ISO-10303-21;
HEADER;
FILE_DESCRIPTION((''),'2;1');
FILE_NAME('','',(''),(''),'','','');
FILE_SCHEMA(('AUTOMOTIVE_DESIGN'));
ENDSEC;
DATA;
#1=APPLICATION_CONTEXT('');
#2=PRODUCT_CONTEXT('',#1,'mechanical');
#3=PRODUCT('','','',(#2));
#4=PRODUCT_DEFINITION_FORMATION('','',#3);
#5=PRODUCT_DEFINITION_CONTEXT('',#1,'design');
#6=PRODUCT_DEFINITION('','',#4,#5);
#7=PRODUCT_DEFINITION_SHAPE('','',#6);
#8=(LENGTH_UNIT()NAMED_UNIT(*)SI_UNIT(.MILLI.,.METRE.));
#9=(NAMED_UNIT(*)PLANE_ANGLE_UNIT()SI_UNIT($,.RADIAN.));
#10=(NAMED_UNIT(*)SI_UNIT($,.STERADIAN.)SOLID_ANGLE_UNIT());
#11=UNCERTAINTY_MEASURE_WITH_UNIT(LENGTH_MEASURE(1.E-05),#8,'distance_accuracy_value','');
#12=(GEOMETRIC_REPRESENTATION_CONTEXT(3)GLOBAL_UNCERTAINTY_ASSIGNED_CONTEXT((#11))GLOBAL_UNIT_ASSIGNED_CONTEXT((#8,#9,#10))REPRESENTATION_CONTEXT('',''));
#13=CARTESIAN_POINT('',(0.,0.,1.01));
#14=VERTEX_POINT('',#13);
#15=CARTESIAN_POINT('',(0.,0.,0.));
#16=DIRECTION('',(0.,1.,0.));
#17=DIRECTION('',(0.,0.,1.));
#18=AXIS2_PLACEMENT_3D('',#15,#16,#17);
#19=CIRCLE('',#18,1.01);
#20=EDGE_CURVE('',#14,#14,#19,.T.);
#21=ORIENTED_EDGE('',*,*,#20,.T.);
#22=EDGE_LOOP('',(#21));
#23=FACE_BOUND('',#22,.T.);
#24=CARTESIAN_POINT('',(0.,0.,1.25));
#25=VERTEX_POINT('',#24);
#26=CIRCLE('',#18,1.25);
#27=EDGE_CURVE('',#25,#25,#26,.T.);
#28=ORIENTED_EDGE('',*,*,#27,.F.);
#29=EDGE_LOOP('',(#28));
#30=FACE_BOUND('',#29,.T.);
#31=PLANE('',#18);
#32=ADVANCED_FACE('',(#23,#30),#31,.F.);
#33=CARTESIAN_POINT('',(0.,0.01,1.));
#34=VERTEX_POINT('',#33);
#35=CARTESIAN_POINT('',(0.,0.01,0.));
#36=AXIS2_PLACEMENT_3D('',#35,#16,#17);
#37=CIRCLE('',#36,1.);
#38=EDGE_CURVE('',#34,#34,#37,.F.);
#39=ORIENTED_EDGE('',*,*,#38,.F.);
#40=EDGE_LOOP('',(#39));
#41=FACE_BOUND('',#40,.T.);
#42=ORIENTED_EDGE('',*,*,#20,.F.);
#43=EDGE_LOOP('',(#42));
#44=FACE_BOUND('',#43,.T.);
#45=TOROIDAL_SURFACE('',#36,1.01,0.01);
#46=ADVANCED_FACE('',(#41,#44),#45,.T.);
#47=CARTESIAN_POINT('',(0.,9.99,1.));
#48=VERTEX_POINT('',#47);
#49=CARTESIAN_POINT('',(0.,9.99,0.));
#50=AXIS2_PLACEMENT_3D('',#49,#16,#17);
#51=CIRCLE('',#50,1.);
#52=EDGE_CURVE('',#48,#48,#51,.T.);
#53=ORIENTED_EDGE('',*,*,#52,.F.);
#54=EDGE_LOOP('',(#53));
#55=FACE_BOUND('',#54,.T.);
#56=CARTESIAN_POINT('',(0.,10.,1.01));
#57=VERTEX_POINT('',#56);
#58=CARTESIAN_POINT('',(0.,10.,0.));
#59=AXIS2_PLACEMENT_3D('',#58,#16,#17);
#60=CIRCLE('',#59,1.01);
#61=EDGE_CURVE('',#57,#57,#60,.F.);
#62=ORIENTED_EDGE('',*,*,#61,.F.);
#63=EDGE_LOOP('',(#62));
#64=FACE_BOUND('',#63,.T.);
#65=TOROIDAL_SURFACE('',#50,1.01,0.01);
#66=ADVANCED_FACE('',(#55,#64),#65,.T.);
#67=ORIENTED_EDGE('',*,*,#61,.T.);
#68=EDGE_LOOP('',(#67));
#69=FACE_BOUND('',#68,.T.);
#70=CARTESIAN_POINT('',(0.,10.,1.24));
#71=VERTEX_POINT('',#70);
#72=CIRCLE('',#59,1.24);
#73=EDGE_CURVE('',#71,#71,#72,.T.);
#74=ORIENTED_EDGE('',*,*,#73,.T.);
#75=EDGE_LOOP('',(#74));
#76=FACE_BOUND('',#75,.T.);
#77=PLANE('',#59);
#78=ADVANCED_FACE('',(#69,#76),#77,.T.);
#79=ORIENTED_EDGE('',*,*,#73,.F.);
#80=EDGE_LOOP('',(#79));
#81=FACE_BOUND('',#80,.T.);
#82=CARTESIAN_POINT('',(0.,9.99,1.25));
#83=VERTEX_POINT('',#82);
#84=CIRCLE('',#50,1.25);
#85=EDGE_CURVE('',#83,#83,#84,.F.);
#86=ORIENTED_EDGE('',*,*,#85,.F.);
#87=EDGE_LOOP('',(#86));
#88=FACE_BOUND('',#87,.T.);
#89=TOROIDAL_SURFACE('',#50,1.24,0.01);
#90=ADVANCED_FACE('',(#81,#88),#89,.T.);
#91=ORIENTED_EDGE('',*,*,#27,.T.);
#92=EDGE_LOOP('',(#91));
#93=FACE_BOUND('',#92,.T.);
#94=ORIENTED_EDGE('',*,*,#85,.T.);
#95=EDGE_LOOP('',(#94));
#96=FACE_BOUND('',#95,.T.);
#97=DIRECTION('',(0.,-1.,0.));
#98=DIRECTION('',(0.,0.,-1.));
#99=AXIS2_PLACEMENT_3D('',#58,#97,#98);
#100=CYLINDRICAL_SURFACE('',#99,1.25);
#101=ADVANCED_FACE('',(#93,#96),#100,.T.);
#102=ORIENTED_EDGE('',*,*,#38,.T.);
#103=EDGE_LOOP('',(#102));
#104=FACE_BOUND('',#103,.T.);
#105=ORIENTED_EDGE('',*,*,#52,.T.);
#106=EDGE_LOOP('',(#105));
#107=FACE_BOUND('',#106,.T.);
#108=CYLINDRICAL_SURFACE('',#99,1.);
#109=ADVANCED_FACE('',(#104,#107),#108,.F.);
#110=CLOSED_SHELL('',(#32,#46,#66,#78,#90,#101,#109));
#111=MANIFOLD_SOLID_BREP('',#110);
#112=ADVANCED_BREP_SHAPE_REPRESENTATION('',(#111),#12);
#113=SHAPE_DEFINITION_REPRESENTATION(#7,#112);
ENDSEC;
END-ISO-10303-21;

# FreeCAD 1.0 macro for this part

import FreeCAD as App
import Part
import Sketcher
from FreeCAD import Vector


def edges_at(feature, points):
    """Names of the edges that pass closest to the given points."""
    edges = feature.Shape.Edges
    near = lambda p: min(range(len(edges)), key=lambda i: edges[i].distToShape(Part.Vertex(*p))[0])
    return sorted({f"Edge{near(p) + 1}" for p in points})

doc = App.newDocument("Part")
body = doc.addObject("PartDesign::Body", "Body")

# Sketch on XZ plane
sketch1 = doc.addObject("Sketcher::SketchObject", "Sketch")
body.addObject(sketch1)
sketch1.AttachmentSupport = (doc.XZ_Plane, [""])
sketch1.MapMode = "FlatFace"
sketch1.addGeometry([
    Part.Circle(Vector(0, 0, 0), Vector(0, 0, 1), 1.2),
    Part.Circle(Vector(0, 0, 0), Vector(0, 0, 1), 1),
], False)
sketch1.addConstraint([
    Sketcher.Constraint("Coincident", 0, 3, -1, 1),
    Sketcher.Constraint("Coincident", 1, 3, -1, 1),
    Sketcher.Constraint("Diameter", 1, 2.0),
    Sketcher.Constraint("Diameter", 0, 2.5),
])
pad1 = doc.addObject("PartDesign::Pad", "Pad")
body.addObject(pad1)
pad1.Profile = sketch1
pad1.Length = 10
pad1.Reversed = True
doc.recompute()

fillet = doc.addObject("PartDesign::Fillet", "Fillet")
body.addObject(fillet)
fillet.Base = (pad1, edges_at(pad1, [(-1.25, 10, 0), (-1, 0, 0), (-1, 10, 0)]))
fillet.Radius = 0.01

doc.recompute()
